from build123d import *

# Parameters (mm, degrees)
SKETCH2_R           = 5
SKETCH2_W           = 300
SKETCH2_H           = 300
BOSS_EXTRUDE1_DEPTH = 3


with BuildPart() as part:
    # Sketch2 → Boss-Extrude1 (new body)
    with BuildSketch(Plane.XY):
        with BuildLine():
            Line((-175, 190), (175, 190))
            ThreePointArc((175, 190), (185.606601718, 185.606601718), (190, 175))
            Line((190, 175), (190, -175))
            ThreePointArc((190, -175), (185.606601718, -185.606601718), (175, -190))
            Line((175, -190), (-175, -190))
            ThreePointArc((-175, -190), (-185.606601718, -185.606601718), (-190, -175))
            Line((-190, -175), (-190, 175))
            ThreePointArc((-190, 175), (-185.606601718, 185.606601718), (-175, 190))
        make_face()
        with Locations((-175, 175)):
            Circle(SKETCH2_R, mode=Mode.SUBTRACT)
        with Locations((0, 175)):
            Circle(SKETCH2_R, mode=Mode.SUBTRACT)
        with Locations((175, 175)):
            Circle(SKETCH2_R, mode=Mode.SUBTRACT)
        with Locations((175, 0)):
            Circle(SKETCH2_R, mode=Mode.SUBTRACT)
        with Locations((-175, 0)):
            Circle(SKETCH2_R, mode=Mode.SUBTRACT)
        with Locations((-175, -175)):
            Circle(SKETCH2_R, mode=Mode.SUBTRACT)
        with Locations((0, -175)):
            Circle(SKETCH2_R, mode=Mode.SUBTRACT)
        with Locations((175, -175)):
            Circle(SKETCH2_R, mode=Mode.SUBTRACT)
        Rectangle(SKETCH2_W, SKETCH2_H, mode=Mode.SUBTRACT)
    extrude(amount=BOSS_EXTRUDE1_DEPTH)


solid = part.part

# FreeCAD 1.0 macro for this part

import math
import FreeCAD as App
import Part
import Sketcher
from FreeCAD import Vector
Q = App.Units.Quantity

doc = App.newDocument("Part")
body = doc.addObject("PartDesign::Body", "Body")

# Sketch on XY plane
sketch1 = body.newObject("Sketcher::SketchObject", "Sketch")
sketch1.AttachmentSupport = (doc.getObject("XY_Plane"), [""])
sketch1.MapMode = "FlatFace"
sketch1.addGeometry(Part.LineSegment(Vector(175, 190, 0), Vector(-175, 190, 0)), False)
sketch1.addGeometry(Part.ArcOfCircle(Part.Circle(Vector(-175, 175, 0), Vector(0, 0, 1), 15), math.radians(90), math.radians(180)), False)
sketch1.addGeometry(Part.LineSegment(Vector(-190, 175, 0), Vector(-190, -175, 0)), False)
sketch1.addGeometry(Part.ArcOfCircle(Part.Circle(Vector(-175, -175, 0), Vector(0, 0, 1), 15), math.radians(180), math.radians(270)), False)
sketch1.addGeometry(Part.LineSegment(Vector(-175, -190, 0), Vector(175, -190, 0)), False)
sketch1.addGeometry(Part.ArcOfCircle(Part.Circle(Vector(175, -175, 0), Vector(0, 0, 1), 15), math.radians(-90), math.radians(0)), False)
sketch1.addGeometry(Part.LineSegment(Vector(190, -175, 0), Vector(190, 175, 0)), False)
sketch1.addGeometry(Part.ArcOfCircle(Part.Circle(Vector(175, 175, 0), Vector(0, 0, 1), 15), math.radians(0), math.radians(90)), False)
sketch1.addGeometry(Part.Circle(Vector(175, -175, 0), Vector(0, 0, 1), 5), False)
sketch1.addGeometry(Part.Circle(Vector(0, -175, 0), Vector(0, 0, 1), 5), False)
sketch1.addGeometry(Part.Circle(Vector(-175, -175, 0), Vector(0, 0, 1), 5), False)
sketch1.addGeometry(Part.Circle(Vector(175, 0, 0), Vector(0, 0, 1), 5), False)
sketch1.addGeometry(Part.Circle(Vector(175, 175, 0), Vector(0, 0, 1), 5), False)
sketch1.addGeometry(Part.LineSegment(Vector(-150, -150, 0), Vector(-150, 150, 0)), False)
sketch1.addGeometry(Part.LineSegment(Vector(-150, 150, 0), Vector(150, 150, 0)), False)
sketch1.addGeometry(Part.LineSegment(Vector(150, 150, 0), Vector(150, -150, 0)), False)
sketch1.addGeometry(Part.LineSegment(Vector(150, -150, 0), Vector(-150, -150, 0)), False)
sketch1.addGeometry(Part.Circle(Vector(-175, 0, 0), Vector(0, 0, 1), 5), False)
sketch1.addGeometry(Part.Circle(Vector(0, 175, 0), Vector(0, 0, 1), 5), False)
sketch1.addGeometry(Part.Circle(Vector(-175, 175, 0), Vector(0, 0, 1), 5), False)
sketch1.addConstraint(Sketcher.Constraint("Tangent", 0, 2, 1, 1))
sketch1.addConstraint(Sketcher.Constraint("Tangent", 1, 2, 2, 1))
sketch1.addConstraint(Sketcher.Constraint("Tangent", 2, 2, 3, 1))
sketch1.addConstraint(Sketcher.Constraint("Tangent", 3, 2, 4, 1))
sketch1.addConstraint(Sketcher.Constraint("Tangent", 4, 2, 5, 1))
sketch1.addConstraint(Sketcher.Constraint("Tangent", 5, 2, 6, 1))
sketch1.addConstraint(Sketcher.Constraint("Tangent", 6, 2, 7, 1))
sketch1.addConstraint(Sketcher.Constraint("Tangent", 7, 2, 0, 1))
sketch1.addConstraint(Sketcher.Constraint("Coincident", 13, 2, 14, 1))
sketch1.addConstraint(Sketcher.Constraint("Coincident", 14, 2, 15, 1))
sketch1.addConstraint(Sketcher.Constraint("Coincident", 15, 2, 16, 1))
sketch1.addConstraint(Sketcher.Constraint("Coincident", 16, 2, 13, 1))
sketch1.addConstraint(Sketcher.Constraint("Horizontal", 0))
sketch1.addConstraint(Sketcher.Constraint("Vertical", 2))
sketch1.addConstraint(Sketcher.Constraint("Horizontal", 4))
sketch1.addConstraint(Sketcher.Constraint("Vertical", 6))
sketch1.addConstraint(Sketcher.Constraint("Vertical", 13))
sketch1.addConstraint(Sketcher.Constraint("Horizontal", 14))
sketch1.addConstraint(Sketcher.Constraint("Vertical", 15))
sketch1.addConstraint(Sketcher.Constraint("Horizontal", 16))
sketch1.addConstraint(Sketcher.Constraint("Coincident", 8, 3, 5, 3))
sketch1.addConstraint(Sketcher.Constraint("Coincident", 10, 3, 3, 3))
sketch1.addConstraint(Sketcher.Constraint("Coincident", 12, 3, 7, 3))
sketch1.addConstraint(Sketcher.Constraint("Coincident", 19, 3, 1, 3))
sketch1.addConstraint(Sketcher.Constraint("Equal", 1, 3))
sketch1.addConstraint(Sketcher.Constraint("Equal", 3, 5))
sketch1.addConstraint(Sketcher.Constraint("Equal", 5, 7))
sketch1.addConstraint(Sketcher.Constraint("Equal", 8, 9))
sketch1.addConstraint(Sketcher.Constraint("Equal", 9, 10))
sketch1.addConstraint(Sketcher.Constraint("Equal", 10, 11))
sketch1.addConstraint(Sketcher.Constraint("Equal", 11, 12))
sketch1.addConstraint(Sketcher.Constraint("Equal", 12, 17))
sketch1.addConstraint(Sketcher.Constraint("Equal", 17, 18))
sketch1.addConstraint(Sketcher.Constraint("Equal", 18, 19))
sketch1.addConstraint(Sketcher.Constraint("Symmetric", 1, 3, 5, 3, -1, 1))
sketch1.addConstraint(Sketcher.Constraint("Symmetric", 11, 3, 17, 3, -1, 1))
sketch1.addConstraint(Sketcher.Constraint("Symmetric", 9, 3, 18, 3, -1, 1))
sketch1.addConstraint(Sketcher.Constraint("Symmetric", 13, 2, 15, 2, -1, 1))
sketch1.addConstraint(Sketcher.Constraint("PointOnObject", 9, 3, -2))
sketch1.addConstraint(Sketcher.Constraint("PointOnObject", 11, 3, -1))
sketch1.addConstraint(Sketcher.Constraint("Horizontal", 8, 3, 9, 3))
sketch1.addConstraint(Sketcher.Constraint("Vertical", 8, 3, 11, 3))
sketch1.addConstraint(Sketcher.Constraint("Equal", 4, 2))
sketch1.addConstraint(Sketcher.Constraint("Equal", 16, 13))
sketch1.addConstraint(Sketcher.Constraint("Diameter", 8, Q("10 mm")))
sketch1.addConstraint(Sketcher.Constraint("Radius", 1, Q("15 mm")))
sketch1.addConstraint(Sketcher.Constraint("DistanceX", 0, 2, 0, 1, Q("350 mm")))
sketch1.addConstraint(Sketcher.Constraint("DistanceX", 14, 1, 14, 2, Q("300 mm")))
pad1 = body.newObject("PartDesign::Pad", "Pad")
pad1.Profile = sketch1
pad1.Length = 3

doc.recompute()
